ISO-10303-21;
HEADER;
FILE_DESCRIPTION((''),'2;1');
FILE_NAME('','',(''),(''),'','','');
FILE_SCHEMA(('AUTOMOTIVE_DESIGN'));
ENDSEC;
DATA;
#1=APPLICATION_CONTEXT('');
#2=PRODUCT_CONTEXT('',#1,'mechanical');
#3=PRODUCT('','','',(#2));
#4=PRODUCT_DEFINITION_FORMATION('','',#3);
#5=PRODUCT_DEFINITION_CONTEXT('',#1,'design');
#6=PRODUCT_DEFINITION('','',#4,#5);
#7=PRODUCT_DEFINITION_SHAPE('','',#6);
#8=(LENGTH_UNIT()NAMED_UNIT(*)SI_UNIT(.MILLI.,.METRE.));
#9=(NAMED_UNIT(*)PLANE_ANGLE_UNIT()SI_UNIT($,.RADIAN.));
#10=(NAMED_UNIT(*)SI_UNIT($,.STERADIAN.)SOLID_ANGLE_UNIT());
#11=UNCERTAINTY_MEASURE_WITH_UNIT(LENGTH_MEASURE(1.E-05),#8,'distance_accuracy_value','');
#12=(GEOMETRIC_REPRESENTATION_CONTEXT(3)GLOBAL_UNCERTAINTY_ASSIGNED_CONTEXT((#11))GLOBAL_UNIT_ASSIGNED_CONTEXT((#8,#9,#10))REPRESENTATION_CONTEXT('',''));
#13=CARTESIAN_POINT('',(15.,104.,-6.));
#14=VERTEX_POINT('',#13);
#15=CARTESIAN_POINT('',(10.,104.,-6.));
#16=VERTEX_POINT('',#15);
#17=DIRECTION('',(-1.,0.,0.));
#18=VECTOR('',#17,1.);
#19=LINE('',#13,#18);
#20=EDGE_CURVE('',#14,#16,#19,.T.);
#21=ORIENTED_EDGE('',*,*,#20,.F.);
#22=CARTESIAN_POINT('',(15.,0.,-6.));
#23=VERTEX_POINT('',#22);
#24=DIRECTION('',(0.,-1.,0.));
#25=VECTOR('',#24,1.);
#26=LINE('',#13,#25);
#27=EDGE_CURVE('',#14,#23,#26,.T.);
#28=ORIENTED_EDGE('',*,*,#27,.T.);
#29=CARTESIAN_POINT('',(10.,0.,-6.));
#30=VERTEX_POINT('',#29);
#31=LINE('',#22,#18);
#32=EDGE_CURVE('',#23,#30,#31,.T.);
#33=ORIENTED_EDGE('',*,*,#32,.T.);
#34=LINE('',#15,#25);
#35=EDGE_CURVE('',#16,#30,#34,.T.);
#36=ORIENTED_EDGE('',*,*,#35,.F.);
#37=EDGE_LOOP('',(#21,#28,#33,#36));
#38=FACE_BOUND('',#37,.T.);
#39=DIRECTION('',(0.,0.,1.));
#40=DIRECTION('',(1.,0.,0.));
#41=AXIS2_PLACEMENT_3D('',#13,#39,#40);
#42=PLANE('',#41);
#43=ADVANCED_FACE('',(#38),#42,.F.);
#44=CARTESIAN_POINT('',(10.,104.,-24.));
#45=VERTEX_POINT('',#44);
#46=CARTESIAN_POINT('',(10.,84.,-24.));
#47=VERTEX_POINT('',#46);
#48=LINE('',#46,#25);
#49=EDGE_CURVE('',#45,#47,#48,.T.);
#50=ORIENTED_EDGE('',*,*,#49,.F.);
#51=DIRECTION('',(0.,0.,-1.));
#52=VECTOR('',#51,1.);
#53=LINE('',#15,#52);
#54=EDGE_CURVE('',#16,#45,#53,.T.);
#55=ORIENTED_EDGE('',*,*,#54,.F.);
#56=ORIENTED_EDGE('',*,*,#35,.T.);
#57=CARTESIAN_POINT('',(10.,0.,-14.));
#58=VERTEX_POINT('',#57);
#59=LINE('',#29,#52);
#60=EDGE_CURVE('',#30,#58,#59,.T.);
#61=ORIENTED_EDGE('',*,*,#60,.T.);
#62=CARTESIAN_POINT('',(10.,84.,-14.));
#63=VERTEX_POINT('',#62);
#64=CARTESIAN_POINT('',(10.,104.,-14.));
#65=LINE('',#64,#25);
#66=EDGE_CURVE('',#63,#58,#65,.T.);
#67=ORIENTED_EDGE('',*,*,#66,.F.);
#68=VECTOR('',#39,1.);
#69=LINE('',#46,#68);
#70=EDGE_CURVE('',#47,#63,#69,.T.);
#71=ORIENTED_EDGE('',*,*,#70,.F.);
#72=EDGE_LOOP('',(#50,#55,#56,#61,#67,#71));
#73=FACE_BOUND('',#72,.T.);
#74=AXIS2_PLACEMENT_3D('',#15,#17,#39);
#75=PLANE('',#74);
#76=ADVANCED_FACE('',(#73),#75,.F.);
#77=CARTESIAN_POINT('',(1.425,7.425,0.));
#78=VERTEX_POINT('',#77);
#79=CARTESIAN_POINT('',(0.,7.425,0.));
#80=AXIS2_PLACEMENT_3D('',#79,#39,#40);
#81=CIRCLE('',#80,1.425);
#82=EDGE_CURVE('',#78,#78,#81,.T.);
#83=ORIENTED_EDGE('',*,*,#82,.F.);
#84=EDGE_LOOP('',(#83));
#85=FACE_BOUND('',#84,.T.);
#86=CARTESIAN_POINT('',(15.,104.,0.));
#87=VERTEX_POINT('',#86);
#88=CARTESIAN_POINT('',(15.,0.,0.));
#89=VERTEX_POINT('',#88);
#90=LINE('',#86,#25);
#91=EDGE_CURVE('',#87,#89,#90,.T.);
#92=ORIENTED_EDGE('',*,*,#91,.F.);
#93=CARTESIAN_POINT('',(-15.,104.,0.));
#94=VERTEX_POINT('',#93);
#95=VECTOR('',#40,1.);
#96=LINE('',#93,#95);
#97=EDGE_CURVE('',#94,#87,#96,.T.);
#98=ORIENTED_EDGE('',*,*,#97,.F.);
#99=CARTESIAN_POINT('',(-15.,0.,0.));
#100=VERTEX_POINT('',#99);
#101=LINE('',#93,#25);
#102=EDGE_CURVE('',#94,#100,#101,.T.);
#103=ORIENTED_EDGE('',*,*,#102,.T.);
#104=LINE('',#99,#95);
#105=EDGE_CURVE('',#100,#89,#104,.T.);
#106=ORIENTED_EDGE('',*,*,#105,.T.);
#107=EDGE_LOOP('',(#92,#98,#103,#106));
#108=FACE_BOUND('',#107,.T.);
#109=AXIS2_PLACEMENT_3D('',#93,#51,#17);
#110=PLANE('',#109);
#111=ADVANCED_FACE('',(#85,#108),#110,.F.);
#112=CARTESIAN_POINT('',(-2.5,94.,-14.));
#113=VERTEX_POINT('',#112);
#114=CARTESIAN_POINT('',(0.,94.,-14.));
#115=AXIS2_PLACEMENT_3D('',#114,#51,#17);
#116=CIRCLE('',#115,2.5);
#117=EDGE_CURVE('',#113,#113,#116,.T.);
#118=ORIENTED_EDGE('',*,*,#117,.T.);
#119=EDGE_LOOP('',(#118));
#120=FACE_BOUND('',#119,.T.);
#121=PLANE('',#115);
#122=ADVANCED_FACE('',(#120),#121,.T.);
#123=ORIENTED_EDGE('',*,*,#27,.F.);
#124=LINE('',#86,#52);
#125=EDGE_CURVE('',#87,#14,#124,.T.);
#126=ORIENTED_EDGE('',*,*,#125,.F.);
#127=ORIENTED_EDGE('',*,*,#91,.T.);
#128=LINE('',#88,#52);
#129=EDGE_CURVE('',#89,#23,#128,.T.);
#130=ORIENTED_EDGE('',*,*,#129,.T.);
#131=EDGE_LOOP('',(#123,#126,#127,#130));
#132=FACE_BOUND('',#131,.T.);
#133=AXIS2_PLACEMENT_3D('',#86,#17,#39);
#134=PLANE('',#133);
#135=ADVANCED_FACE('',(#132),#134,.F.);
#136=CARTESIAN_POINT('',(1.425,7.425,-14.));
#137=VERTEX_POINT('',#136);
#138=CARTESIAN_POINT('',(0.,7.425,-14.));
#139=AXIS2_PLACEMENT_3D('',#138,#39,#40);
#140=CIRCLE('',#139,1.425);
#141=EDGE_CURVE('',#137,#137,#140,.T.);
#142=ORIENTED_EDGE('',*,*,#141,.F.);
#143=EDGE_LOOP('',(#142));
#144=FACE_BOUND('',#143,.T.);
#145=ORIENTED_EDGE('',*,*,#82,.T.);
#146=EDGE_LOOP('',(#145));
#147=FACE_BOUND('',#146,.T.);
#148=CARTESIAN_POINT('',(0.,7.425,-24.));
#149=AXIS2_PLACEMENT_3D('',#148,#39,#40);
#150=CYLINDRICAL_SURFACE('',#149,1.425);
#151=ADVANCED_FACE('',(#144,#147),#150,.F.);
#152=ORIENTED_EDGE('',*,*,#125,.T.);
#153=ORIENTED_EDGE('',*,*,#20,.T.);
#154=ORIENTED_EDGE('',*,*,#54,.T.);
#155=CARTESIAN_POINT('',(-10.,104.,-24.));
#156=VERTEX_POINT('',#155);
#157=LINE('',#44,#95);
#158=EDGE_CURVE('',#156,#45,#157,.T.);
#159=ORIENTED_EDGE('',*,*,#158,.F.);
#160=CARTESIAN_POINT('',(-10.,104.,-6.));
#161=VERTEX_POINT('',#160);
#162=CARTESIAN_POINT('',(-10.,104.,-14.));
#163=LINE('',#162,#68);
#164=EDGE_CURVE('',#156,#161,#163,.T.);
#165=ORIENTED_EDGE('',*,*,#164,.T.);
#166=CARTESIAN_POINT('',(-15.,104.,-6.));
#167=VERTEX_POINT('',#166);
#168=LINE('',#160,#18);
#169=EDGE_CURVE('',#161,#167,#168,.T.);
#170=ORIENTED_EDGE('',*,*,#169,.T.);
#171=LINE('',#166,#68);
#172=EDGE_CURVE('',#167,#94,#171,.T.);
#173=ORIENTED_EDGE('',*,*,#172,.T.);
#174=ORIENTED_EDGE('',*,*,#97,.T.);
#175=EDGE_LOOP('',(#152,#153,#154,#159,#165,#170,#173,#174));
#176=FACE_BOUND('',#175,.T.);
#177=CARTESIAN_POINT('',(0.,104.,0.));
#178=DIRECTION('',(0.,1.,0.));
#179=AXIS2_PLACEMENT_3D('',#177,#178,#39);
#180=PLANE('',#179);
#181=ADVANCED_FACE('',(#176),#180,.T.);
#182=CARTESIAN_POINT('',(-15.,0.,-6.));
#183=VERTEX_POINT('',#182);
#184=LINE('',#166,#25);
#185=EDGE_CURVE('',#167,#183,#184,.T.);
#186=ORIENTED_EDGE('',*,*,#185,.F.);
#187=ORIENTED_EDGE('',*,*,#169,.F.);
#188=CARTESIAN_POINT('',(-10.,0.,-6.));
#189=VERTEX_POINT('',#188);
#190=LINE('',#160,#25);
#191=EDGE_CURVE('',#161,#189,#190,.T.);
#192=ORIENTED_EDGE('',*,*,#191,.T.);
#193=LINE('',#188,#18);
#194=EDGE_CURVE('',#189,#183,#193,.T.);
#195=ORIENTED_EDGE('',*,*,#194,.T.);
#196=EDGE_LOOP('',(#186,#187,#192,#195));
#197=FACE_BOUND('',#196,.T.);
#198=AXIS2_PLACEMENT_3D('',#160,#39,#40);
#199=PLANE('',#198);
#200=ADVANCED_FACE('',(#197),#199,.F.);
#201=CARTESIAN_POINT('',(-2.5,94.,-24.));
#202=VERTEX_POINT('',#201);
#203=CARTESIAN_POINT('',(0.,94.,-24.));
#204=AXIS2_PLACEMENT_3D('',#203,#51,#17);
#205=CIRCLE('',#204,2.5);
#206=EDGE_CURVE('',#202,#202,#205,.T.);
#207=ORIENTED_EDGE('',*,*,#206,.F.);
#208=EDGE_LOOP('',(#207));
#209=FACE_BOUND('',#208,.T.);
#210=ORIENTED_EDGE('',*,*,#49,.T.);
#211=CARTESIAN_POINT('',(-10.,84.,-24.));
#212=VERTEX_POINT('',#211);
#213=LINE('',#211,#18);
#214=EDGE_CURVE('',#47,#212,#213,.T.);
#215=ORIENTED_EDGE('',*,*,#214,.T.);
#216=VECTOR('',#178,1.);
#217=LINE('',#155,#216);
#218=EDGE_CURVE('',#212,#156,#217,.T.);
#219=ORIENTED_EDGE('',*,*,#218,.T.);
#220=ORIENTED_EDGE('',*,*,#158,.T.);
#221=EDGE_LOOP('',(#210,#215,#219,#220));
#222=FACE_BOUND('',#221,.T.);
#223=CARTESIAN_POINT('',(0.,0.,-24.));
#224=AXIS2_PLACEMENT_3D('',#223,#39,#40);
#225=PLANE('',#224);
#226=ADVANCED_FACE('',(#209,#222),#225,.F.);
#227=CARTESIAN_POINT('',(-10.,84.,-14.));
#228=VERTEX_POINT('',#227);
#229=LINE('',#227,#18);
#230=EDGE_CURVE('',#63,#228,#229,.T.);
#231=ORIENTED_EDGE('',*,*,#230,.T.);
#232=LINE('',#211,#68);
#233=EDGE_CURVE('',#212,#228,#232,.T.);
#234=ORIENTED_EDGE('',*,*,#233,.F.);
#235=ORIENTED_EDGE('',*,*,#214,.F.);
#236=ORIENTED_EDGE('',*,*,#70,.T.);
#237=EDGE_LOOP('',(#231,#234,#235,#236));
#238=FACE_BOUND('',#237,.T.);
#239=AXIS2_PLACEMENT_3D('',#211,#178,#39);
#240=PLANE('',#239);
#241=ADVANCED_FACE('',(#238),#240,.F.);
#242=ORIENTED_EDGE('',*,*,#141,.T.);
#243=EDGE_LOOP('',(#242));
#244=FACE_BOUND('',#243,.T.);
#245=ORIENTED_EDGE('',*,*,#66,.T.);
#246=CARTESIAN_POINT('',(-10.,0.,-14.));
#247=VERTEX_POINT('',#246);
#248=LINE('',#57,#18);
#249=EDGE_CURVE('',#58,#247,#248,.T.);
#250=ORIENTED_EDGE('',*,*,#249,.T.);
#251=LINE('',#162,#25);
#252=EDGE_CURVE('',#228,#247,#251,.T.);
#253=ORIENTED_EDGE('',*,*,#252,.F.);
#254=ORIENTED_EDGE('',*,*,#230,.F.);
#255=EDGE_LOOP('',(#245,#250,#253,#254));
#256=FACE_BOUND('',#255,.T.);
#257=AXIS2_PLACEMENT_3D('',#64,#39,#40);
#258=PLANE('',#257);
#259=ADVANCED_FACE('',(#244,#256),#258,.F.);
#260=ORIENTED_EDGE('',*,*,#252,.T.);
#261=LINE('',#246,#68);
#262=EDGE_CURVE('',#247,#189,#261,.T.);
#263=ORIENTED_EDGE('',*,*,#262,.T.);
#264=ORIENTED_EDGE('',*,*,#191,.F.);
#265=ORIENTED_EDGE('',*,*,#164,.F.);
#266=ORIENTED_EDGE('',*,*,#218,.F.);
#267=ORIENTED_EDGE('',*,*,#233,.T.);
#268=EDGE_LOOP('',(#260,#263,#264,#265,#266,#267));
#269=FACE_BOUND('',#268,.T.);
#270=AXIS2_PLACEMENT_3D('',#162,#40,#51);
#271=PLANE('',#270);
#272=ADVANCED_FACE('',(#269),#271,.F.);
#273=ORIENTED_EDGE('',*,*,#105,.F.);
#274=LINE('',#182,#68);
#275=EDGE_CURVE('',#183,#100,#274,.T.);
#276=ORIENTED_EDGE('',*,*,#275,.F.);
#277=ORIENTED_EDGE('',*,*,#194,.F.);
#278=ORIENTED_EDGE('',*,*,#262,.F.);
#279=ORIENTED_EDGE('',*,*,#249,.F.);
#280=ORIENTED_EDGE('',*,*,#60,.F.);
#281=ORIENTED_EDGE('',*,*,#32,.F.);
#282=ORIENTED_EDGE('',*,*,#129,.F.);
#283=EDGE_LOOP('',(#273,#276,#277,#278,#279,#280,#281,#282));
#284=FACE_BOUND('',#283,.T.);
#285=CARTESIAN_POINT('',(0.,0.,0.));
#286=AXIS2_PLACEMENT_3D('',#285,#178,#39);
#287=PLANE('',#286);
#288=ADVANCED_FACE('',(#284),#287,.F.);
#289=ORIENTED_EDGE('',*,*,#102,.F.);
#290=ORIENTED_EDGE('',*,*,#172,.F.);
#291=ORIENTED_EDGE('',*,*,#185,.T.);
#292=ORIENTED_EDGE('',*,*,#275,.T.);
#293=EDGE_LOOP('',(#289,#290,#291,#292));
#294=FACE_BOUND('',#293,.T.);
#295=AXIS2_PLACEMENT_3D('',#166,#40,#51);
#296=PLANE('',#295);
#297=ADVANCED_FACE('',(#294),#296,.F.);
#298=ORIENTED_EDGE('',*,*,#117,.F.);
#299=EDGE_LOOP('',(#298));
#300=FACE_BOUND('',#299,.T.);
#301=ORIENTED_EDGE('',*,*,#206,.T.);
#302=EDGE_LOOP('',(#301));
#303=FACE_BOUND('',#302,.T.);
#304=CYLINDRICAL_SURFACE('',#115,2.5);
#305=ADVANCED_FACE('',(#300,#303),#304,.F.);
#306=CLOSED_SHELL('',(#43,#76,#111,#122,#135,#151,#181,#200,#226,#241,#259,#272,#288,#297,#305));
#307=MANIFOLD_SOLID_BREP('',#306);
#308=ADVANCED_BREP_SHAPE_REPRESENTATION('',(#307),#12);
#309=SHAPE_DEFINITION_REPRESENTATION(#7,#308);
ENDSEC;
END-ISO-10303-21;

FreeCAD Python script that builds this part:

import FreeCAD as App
import Part
import Sketcher
Q = App.Units.Quantity

doc = App.newDocument("Part")
body = doc.addObject("PartDesign::Body", "Body")

# Sketch on XZ plane
sketch1 = doc.addObject("Sketcher::SketchObject", "Sketch")
body.addObject(sketch1)
sketch1.AttachmentSupport = (doc.XZ_Plane, [""])
sketch1.MapMode = "FlatFace"
sketch1.addGeometry(Part.LineSegment(App.Vector(-15, 0, 0), App.Vector(15, 0, 0)), False)
sketch1.addGeometry(Part.LineSegment(App.Vector(15, 0, 0), App.Vector(15, -6, 0)), False)
sketch1.addGeometry(Part.LineSegment(App.Vector(15, -6, 0), App.Vector(10, -6, 0)), False)
sketch1.addGeometry(Part.LineSegment(App.Vector(10, -6, 0), App.Vector(10, -14, 0)), False)
sketch1.addGeometry(Part.LineSegment(App.Vector(10, -14, 0), App.Vector(-10, -14, 0)), False)
sketch1.addGeometry(Part.LineSegment(App.Vector(-10, -14, 0), App.Vector(-10, -6, 0)), False)
sketch1.addGeometry(Part.LineSegment(App.Vector(-10, -6, 0), App.Vector(-15, -6, 0)), False)
sketch1.addGeometry(Part.LineSegment(App.Vector(-15, -6, 0), App.Vector(-15, 0, 0)), False)
sketch1.addConstraint(Sketcher.Constraint("Coincident", 0, 2, 1, 1))
sketch1.addConstraint(Sketcher.Constraint("Coincident", 1, 2, 2, 1))
sketch1.addConstraint(Sketcher.Constraint("Coincident", 2, 2, 3, 1))
sketch1.addConstraint(Sketcher.Constraint("Coincident", 3, 2, 4, 1))
sketch1.addConstraint(Sketcher.Constraint("Coincident", 4, 2, 5, 1))
sketch1.addConstraint(Sketcher.Constraint("Coincident", 5, 2, 6, 1))
sketch1.addConstraint(Sketcher.Constraint("Coincident", 6, 2, 7, 1))
sketch1.addConstraint(Sketcher.Constraint("Coincident", 7, 2, 0, 1))
sketch1.addConstraint(Sketcher.Constraint("Horizontal", 0))
sketch1.addConstraint(Sketcher.Constraint("Vertical", 1))
sketch1.addConstraint(Sketcher.Constraint("Horizontal", 2))
sketch1.addConstraint(Sketcher.Constraint("Vertical", 3))
sketch1.addConstraint(Sketcher.Constraint("Horizontal", 4))
sketch1.addConstraint(Sketcher.Constraint("Vertical", 5))
sketch1.addConstraint(Sketcher.Constraint("Horizontal", 6))
sketch1.addConstraint(Sketcher.Constraint("Vertical", 7))
sketch1.addConstraint(Sketcher.Constraint("Symmetric", 0, 2, 7, 2, -1, 1))
sketch1.addConstraint(Sketcher.Constraint("Symmetric", 2, 2, 5, 2, -2))
sketch1.addConstraint(Sketcher.Constraint("DistanceX", 0, 1, 0, 2, Q("30 mm")))
sketch1.addConstraint(Sketcher.Constraint("DistanceX", 2, 2, 2, 1, Q("5 mm")))
sketch1.addConstraint(Sketcher.Constraint("DistanceY", 1, 2, 1, 1, Q("6 mm")))
sketch1.addConstraint(Sketcher.Constraint("DistanceY", 3, 2, 3, 1, Q("8 mm")))
pad1 = doc.addObject("PartDesign::Pad", "Pad")
body.addObject(pad1)
pad1.Profile = sketch1
pad1.Length = 104
pad1.Reversed = True

# Sketch on XY plane
sketch2 = doc.addObject("Sketcher::SketchObject", "Sketch001")
body.addObject(sketch2)
sketch2.AttachmentSupport = (doc.XY_Plane, [""])
sketch2.MapMode = "FlatFace"
sketch2.AttachmentOffset = App.Placement(App.Vector(0, 0, -14), App.Rotation())
sketch2.addGeometry(Part.LineSegment(App.Vector(10, 104, 0), App.Vector(10, 84, 0)), False)
sketch2.addGeometry(Part.LineSegment(App.Vector(10, 84, 0), App.Vector(-10, 84, 0)), False)
sketch2.addGeometry(Part.LineSegment(App.Vector(-10, 84, 0), App.Vector(-10, 104, 0)), False)
sketch2.addGeometry(Part.LineSegment(App.Vector(-10, 104, 0), App.Vector(10, 104, 0)), False)
sketch2.addConstraint(Sketcher.Constraint("Coincident", 0, 2, 1, 1))
sketch2.addConstraint(Sketcher.Constraint("Coincident", 1, 2, 2, 1))
sketch2.addConstraint(Sketcher.Constraint("Coincident", 2, 2, 3, 1))
sketch2.addConstraint(Sketcher.Constraint("Coincident", 3, 2, 0, 1))
sketch2.addConstraint(Sketcher.Constraint("Vertical", 0))
sketch2.addConstraint(Sketcher.Constraint("Horizontal", 1))
sketch2.addConstraint(Sketcher.Constraint("Vertical", 2))
sketch2.addConstraint(Sketcher.Constraint("Horizontal", 3))
sketch2.addConstraint(Sketcher.Constraint("Equal", 3, 0))
sketch2.addConstraint(Sketcher.Constraint("DistanceX", 1, 2, 1, 1, Q("20 mm")))
sketch2.addConstraint(Sketcher.Constraint("DistanceX", -1, 1, 0, 2, Q("10 mm")))
sketch2.addConstraint(Sketcher.Constraint("DistanceY", -1, 1, 0, 2, Q("84 mm")))
pad2 = doc.addObject("PartDesign::Pad", "Pad001")
body.addObject(pad2)
pad2.Profile = sketch2
pad2.Length = 10
pad2.Reversed = True

# Sketch on XY plane
sketch3 = doc.addObject("Sketcher::SketchObject", "Sketch002")
body.addObject(sketch3)
sketch3.AttachmentSupport = (doc.XY_Plane, [""])
sketch3.MapMode = "FlatFace"
sketch3.AttachmentOffset = App.Placement(App.Vector(0, 0, -24), App.Rotation())
sketch3.addGeometry(Part.Circle(App.Vector(0, 94, 0), App.Vector(0, 0, 1), 2.5), False)
sketch3.addConstraint(Sketcher.Constraint("PointOnObject", 0, 3, -2))
sketch3.addConstraint(Sketcher.Constraint("Diameter", 0, Q("5 mm")))
sketch3.addConstraint(Sketcher.Constraint("DistanceY", -1, 1, 0, 3, Q("94 mm")))
pocket1 = doc.addObject("PartDesign::Pocket", "Pocket")
body.addObject(pocket1)
pocket1.Profile = sketch3
pocket1.Length = 10
pocket1.Reversed = True

# Sketch on XY plane
sketch4 = doc.addObject("Sketcher::SketchObject", "Sketch003")
body.addObject(sketch4)
sketch4.AttachmentSupport = (doc.XY_Plane, [""])
sketch4.MapMode = "FlatFace"
sketch4.addGeometry(Part.Circle(App.Vector(0, 7.4, 0), App.Vector(0, 0, 1), 1.4), False)
sketch4.addConstraint(Sketcher.Constraint("PointOnObject", 0, 3, -2))
sketch4.addConstraint(Sketcher.Constraint("Diameter", 0, Q("2.85 mm")))
sketch4.addConstraint(Sketcher.Constraint("DistanceY", -1, 1, 0, 3, Q("7.425 mm")))
pocket2 = doc.addObject("PartDesign::Pocket", "Pocket001")
body.addObject(pocket2)
pocket2.Profile = sketch4
pocket2.Type = "ThroughAll"

doc.recompute()
